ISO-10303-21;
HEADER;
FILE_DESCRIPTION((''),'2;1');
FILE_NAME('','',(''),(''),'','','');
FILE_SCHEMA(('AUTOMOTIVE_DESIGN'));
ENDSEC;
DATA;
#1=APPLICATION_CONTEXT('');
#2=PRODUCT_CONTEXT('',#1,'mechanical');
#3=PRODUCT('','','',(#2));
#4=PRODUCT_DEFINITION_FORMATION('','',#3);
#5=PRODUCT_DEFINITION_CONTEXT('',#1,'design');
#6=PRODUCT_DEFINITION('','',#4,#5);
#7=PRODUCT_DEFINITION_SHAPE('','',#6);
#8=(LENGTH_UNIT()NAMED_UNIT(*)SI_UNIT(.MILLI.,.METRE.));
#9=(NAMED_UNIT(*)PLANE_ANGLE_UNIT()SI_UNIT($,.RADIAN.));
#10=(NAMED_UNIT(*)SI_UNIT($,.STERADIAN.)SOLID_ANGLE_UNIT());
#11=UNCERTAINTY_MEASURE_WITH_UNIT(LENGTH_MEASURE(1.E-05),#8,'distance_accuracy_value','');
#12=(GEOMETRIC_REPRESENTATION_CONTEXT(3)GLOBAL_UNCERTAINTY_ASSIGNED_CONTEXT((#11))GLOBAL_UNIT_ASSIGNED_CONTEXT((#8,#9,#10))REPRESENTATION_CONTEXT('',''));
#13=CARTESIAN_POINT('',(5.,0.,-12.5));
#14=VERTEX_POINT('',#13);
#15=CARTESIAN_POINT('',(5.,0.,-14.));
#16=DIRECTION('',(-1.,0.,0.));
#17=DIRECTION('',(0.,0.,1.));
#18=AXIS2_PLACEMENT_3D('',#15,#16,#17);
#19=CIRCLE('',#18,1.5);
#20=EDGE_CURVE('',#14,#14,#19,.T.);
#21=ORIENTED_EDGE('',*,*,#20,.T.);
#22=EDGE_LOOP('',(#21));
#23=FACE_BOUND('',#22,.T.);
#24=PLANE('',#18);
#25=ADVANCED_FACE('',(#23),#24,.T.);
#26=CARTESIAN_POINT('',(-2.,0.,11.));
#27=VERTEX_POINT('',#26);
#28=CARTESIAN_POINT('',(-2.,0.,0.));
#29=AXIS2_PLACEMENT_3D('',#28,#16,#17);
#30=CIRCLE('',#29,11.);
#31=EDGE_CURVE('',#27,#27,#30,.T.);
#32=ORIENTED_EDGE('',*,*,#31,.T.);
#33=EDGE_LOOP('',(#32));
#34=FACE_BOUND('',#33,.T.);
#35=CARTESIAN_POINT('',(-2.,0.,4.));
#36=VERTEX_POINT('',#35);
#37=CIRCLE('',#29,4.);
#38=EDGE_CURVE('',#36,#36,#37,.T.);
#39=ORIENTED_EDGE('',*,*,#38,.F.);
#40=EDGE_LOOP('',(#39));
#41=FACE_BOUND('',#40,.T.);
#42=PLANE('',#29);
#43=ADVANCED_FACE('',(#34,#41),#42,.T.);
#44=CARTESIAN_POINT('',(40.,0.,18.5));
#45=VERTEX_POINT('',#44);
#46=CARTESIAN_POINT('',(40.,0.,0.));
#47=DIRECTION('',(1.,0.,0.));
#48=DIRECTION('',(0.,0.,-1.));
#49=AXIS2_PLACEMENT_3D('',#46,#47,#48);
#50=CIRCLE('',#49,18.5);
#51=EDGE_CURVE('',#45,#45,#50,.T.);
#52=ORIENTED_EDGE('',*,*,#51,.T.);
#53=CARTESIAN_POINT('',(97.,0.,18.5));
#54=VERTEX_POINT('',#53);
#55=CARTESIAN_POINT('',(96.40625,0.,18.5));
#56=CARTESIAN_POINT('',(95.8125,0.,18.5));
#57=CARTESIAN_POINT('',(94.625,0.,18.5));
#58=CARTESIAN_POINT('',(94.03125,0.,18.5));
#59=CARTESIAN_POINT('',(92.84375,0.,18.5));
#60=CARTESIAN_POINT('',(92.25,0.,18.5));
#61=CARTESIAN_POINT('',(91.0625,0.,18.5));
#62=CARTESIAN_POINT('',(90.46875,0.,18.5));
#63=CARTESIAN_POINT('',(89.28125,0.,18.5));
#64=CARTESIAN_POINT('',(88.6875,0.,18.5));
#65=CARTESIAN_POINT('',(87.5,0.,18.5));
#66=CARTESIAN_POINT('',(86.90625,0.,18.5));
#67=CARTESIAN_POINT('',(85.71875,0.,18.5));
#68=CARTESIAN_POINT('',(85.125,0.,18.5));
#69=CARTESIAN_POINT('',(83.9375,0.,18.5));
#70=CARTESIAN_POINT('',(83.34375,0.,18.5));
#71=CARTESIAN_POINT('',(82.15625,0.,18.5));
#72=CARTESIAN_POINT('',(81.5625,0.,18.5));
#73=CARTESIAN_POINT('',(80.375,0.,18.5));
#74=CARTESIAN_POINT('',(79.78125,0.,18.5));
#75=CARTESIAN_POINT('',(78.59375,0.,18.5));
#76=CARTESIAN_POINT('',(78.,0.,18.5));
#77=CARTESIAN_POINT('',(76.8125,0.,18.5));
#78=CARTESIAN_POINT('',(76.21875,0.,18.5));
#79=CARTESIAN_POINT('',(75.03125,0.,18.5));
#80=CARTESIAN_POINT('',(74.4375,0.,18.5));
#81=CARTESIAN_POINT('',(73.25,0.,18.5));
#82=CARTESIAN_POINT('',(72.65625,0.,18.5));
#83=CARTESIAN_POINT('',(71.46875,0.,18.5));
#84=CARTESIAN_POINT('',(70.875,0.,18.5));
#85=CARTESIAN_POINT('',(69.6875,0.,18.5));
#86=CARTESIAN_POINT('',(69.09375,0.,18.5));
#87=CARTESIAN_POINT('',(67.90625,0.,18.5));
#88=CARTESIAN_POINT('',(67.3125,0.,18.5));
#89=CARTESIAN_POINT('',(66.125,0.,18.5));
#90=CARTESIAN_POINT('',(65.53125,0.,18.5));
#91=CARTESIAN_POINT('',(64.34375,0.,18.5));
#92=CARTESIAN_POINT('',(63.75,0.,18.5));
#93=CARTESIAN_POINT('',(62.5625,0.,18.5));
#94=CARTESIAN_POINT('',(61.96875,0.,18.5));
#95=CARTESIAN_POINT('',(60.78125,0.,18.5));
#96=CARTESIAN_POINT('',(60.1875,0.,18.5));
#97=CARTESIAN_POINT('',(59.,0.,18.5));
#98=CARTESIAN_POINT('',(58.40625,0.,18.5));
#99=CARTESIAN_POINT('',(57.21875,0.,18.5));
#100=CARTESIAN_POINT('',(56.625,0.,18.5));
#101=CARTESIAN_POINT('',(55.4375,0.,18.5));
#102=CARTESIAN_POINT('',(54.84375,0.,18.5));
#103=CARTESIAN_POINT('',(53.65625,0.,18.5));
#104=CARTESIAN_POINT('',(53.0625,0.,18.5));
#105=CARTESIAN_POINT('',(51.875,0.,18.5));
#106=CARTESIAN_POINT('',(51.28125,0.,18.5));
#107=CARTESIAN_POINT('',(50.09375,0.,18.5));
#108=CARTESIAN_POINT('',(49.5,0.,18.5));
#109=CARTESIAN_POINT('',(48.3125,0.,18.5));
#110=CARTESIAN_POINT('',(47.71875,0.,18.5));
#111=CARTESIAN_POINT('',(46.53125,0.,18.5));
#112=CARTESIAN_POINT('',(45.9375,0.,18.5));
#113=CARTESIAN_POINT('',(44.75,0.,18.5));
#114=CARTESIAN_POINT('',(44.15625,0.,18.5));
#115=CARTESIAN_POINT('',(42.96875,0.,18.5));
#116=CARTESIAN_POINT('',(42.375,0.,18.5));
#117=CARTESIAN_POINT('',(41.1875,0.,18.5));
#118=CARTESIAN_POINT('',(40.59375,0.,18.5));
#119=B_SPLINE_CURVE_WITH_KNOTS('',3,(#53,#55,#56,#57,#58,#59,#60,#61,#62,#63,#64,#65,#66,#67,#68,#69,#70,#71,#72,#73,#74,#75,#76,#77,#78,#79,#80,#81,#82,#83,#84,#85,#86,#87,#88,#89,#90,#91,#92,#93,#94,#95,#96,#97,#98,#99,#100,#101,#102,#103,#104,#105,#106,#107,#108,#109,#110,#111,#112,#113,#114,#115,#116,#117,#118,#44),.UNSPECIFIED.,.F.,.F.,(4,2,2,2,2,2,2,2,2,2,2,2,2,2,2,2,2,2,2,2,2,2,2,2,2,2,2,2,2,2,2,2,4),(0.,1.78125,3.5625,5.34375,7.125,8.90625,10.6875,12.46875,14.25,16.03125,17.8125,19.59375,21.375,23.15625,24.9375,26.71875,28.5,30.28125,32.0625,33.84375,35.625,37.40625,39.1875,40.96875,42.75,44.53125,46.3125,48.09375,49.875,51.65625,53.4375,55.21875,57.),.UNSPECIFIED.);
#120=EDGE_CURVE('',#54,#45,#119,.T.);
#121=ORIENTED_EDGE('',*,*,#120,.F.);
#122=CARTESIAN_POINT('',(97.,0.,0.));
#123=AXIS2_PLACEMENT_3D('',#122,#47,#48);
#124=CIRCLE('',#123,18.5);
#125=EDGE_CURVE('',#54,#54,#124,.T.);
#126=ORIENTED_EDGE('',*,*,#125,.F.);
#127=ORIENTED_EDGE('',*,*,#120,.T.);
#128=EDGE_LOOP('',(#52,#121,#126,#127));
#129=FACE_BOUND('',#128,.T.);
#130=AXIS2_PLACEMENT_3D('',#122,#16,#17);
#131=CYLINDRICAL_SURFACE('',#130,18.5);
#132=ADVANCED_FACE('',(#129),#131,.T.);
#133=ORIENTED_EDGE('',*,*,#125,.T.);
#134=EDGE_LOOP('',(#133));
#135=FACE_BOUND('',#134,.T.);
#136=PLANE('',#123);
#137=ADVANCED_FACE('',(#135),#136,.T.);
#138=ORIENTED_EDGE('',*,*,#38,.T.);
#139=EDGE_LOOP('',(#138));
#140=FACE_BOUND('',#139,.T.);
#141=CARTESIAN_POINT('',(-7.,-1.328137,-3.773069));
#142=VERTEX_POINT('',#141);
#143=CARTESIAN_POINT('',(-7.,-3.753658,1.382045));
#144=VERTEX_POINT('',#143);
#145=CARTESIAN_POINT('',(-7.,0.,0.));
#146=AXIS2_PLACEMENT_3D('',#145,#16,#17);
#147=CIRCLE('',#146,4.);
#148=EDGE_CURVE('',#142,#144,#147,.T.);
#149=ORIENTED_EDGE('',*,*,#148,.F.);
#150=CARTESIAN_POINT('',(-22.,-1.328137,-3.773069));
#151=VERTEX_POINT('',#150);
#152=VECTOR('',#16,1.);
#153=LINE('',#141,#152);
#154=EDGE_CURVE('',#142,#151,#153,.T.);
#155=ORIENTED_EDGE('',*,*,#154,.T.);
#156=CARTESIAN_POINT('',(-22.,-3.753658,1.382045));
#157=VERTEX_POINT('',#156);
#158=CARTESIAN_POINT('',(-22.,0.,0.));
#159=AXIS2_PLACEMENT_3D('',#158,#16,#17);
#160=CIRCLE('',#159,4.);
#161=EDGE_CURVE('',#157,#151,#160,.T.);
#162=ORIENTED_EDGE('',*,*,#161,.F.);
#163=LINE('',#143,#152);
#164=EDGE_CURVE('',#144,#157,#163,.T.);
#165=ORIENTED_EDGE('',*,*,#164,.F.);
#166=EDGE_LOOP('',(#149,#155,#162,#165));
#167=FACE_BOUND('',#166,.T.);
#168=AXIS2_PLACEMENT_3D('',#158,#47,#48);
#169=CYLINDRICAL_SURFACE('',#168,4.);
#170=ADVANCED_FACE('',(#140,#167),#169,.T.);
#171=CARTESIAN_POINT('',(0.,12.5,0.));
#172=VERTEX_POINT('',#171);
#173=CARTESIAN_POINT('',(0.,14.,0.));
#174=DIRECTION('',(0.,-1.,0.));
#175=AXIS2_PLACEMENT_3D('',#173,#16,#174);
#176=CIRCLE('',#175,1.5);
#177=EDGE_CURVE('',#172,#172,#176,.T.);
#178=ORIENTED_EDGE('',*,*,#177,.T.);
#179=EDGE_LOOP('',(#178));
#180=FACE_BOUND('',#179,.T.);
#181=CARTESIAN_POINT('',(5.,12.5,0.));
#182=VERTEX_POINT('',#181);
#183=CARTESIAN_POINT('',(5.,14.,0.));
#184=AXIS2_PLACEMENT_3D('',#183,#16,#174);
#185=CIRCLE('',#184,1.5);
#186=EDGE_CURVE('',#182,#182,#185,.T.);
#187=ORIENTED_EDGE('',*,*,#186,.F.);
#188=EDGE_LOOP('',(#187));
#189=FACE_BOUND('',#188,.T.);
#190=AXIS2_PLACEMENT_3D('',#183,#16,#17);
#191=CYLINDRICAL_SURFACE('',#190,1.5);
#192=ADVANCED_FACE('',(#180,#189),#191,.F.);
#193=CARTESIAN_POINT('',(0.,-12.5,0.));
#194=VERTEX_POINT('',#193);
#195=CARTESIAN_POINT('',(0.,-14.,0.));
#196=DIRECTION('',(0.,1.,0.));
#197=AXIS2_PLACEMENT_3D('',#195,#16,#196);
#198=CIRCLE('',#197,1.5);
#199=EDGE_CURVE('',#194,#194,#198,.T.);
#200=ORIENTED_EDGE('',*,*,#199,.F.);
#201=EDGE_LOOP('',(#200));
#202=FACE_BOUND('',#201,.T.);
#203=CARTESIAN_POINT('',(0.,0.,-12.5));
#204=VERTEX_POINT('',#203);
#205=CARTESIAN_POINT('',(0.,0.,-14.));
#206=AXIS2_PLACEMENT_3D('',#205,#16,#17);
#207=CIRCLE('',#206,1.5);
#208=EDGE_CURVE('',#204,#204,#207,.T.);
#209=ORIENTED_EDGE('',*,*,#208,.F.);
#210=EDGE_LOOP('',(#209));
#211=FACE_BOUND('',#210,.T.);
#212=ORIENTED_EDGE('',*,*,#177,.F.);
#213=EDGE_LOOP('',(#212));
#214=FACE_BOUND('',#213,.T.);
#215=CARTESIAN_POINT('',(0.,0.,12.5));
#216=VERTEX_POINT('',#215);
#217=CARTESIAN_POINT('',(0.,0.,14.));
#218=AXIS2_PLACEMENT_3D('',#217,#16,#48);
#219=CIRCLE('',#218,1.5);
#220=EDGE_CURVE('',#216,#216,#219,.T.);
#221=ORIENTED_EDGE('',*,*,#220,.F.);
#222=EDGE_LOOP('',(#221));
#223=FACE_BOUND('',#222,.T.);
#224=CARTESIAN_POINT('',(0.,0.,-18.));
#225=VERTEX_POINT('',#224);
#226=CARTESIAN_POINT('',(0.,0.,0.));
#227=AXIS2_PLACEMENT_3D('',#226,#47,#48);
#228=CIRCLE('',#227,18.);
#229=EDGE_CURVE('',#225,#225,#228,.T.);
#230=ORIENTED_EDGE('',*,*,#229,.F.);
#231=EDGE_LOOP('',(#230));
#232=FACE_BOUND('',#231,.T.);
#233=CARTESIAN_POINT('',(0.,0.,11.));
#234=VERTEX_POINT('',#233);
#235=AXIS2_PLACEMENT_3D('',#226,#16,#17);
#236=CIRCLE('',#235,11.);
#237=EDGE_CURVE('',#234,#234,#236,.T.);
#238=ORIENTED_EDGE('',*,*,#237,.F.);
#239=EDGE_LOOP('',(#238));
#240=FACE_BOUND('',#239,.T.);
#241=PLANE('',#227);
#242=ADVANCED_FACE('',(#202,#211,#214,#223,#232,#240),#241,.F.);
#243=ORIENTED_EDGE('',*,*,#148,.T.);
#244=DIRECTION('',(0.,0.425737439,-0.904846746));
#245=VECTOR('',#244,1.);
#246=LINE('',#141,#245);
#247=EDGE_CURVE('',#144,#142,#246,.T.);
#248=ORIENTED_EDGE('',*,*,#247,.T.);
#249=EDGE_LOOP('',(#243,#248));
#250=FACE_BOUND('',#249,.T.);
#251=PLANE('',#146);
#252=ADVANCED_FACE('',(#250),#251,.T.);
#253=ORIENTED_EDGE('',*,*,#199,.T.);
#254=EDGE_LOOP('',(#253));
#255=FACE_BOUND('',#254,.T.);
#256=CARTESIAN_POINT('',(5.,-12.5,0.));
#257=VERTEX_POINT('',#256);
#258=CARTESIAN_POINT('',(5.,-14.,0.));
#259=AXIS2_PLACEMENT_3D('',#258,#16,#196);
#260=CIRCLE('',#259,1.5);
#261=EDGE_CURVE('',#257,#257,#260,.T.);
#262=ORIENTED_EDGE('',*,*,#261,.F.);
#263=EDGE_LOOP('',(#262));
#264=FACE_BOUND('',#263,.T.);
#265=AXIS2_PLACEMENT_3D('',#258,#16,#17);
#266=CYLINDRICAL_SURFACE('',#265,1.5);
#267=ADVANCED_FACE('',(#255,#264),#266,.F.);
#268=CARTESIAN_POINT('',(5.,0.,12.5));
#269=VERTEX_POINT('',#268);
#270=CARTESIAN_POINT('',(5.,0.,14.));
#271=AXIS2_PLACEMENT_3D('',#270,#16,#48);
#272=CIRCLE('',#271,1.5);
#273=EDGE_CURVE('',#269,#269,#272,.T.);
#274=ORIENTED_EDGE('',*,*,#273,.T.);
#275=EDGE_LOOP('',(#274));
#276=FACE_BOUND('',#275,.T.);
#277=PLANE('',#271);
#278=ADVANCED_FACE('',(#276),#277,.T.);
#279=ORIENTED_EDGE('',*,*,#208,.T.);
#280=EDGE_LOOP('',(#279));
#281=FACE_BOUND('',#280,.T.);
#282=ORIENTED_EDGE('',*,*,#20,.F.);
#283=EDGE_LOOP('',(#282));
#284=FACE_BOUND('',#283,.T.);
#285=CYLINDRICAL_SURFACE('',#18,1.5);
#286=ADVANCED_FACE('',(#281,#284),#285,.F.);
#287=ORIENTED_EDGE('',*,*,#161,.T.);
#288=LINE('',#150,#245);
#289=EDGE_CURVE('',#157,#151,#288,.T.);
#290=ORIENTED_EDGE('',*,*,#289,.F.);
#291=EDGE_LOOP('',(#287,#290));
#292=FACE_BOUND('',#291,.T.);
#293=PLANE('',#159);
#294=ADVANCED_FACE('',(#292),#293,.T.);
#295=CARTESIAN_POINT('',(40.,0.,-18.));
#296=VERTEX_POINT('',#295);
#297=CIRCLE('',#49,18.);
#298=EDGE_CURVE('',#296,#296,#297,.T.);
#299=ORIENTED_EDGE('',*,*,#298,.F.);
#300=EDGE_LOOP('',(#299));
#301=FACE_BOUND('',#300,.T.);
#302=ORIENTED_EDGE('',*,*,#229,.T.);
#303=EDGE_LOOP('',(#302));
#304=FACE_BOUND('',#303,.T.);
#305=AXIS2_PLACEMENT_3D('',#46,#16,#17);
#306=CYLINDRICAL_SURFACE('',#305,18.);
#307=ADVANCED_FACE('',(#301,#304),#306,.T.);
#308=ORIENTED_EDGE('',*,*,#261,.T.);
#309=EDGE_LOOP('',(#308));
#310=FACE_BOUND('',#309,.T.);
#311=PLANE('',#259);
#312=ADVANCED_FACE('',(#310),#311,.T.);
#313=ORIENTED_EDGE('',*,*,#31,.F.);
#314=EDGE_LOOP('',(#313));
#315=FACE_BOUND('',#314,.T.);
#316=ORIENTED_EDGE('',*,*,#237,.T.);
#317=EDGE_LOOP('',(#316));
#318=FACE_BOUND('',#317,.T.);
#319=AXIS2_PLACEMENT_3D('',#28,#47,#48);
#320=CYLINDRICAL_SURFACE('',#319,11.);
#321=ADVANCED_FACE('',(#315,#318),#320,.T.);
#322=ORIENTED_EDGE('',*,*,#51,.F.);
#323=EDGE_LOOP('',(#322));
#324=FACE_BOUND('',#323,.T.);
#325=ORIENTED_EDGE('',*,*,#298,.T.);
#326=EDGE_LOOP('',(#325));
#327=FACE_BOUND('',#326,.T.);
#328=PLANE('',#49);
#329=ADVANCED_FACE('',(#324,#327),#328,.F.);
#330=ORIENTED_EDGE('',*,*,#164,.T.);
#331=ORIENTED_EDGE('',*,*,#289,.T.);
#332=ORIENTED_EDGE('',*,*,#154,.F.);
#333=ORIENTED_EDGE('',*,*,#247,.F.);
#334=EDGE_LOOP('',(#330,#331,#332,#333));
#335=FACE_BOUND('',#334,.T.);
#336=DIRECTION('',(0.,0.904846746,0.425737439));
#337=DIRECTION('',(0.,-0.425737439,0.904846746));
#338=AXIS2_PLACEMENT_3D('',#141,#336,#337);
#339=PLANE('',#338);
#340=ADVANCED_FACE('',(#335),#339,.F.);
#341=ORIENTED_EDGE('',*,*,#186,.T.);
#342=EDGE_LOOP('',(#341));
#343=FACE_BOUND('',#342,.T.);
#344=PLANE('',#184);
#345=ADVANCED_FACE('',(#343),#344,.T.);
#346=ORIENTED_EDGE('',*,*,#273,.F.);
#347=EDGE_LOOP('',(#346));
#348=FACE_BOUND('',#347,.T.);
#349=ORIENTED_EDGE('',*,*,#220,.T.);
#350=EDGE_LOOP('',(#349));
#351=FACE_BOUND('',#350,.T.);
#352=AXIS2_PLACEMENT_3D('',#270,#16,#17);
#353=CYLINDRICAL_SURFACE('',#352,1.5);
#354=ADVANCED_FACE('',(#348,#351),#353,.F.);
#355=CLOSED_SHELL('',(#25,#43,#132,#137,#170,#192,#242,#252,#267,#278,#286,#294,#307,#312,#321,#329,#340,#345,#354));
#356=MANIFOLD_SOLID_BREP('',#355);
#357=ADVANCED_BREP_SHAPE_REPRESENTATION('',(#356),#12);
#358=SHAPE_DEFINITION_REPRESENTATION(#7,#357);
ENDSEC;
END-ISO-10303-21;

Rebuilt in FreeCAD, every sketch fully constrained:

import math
import FreeCAD as App
import Part
import Sketcher

V = App.Vector

doc = App.newDocument("Part")
body = doc.addObject("PartDesign::Body", "Body")

# Sketch on YZ plane
sketch1 = doc.addObject("Sketcher::SketchObject", "Sketch")
body.addObject(sketch1)
sketch1.AttachmentSupport = (doc.YZ_Plane, [""])
sketch1.MapMode = "FlatFace"
sketch1.addGeometry(Part.Circle(V(0, 0, 0), V(0, 0, 1), 18), False)
sketch1.addConstraint([
    Sketcher.Constraint("Coincident", 0, 3, -1, 1),
    Sketcher.Constraint("Diameter", 0, 36.0),
])
pad1 = doc.addObject("PartDesign::Pad", "Pad")
body.addObject(pad1)
pad1.Profile = sketch1
pad1.Length = 40

# Sketch on YZ plane
sketch2 = doc.addObject("Sketcher::SketchObject", "Sketch001")
body.addObject(sketch2)
sketch2.AttachmentSupport = (doc.YZ_Plane, [""])
sketch2.MapMode = "FlatFace"
sketch2.addGeometry(Part.Circle(V(0, 0, 0), V(0, 0, 1), 11), False)
sketch2.addConstraint([
    Sketcher.Constraint("Coincident", 0, 3, -1, 1),
    Sketcher.Constraint("Diameter", 0, 22.0),
])
pad2 = doc.addObject("PartDesign::Pad", "Pad001")
body.addObject(pad2)
pad2.Profile = sketch2
pad2.Length = 2
pad2.Reversed = True

# Sketch on YZ plane
sketch3 = doc.addObject("Sketcher::SketchObject", "Sketch002")
body.addObject(sketch3)
sketch3.AttachmentSupport = (doc.YZ_Plane, [""])
sketch3.MapMode = "FlatFace"
sketch3.AttachmentOffset = App.Placement(V(0, 0, -2), App.Rotation())
sketch3.addGeometry(Part.Circle(V(0, 0, 0), V(0, 0, 1), 4), False)
sketch3.addConstraint([
    Sketcher.Constraint("Coincident", 0, 3, -1, 1),
    Sketcher.Constraint("Diameter", 0, 8.0),
])
pad3 = doc.addObject("PartDesign::Pad", "Pad002")
body.addObject(pad3)
pad3.Profile = sketch3
pad3.Length = 20
pad3.Reversed = True

# Sketch on YZ plane
sketch4 = doc.addObject("Sketcher::SketchObject", "Sketch003")
body.addObject(sketch4)
sketch4.AttachmentSupport = (doc.YZ_Plane, [""])
sketch4.MapMode = "FlatFace"
sketch4.addGeometry(Part.Circle(V(0, -14, 0), V(0, 0, 1), 1.5), False)
sketch4.addConstraint([
    Sketcher.Constraint("PointOnObject", 0, 3, -2),
    Sketcher.Constraint("Diameter", 0, 3.0),
    Sketcher.Constraint("DistanceY", 0, 3, -1, 1, 14.0),
])
pocket1 = doc.addObject("PartDesign::Pocket", "Pocket")
body.addObject(pocket1)
pocket1.Profile = sketch4
pocket1.Length = 5
pocket1.Reversed = True
doc.recompute()

polarpattern = doc.addObject("PartDesign::PolarPattern", "PolarPattern")
body.addObject(polarpattern)
polarpattern.Originals = [pocket1]
polarpattern.Axis = (doc.X_Axis, [""])
polarpattern.Angle = 360
polarpattern.Occurrences = 4
body.Tip = polarpattern

# Sketch on YZ plane
sketch5 = doc.addObject("Sketcher::SketchObject", "Sketch004")
body.addObject(sketch5)
sketch5.AttachmentSupport = (doc.YZ_Plane, [""])
sketch5.MapMode = "FlatFace"
sketch5.AttachmentOffset = App.Placement(V(0, 0, -7), App.Rotation())
sketch5.addGeometry([
    Part.LineSegment(V(-3.8, 1.4, 0), V(-1.3, -3.8, 0)),
    Part.ArcOfCircle(Part.Circle(V(0, 0, 0), V(0, 0, 1), 4), math.radians(160), math.radians(251)),
], False)
sketch5.addConstraint([
    Sketcher.Constraint("Coincident", 0, 1, 1, 1),
    Sketcher.Constraint("Coincident", 1, 2, 0, 2),
    Sketcher.Constraint("Coincident", 1, 3, -1, 1),
    Sketcher.Constraint("Radius", 1, 4.0),
    Sketcher.Constraint("DistanceX", 0, 1, -1, 1, 3.753658),
    Sketcher.Constraint("DistanceY", 1, 2, -1, 1, 3.773069),
])
pocket2 = doc.addObject("PartDesign::Pocket", "Pocket001")
body.addObject(pocket2)
pocket2.Profile = sketch5
pocket2.Length = 15

# Sketch on YZ plane
sketch6 = doc.addObject("Sketcher::SketchObject", "Sketch005")
body.addObject(sketch6)
sketch6.AttachmentSupport = (doc.YZ_Plane, [""])
sketch6.MapMode = "FlatFace"
sketch6.AttachmentOffset = App.Placement(V(0, 0, 40), App.Rotation())
sketch6.addGeometry(Part.Circle(V(0, 0, 0), V(0, 0, 1), 18), False)
sketch6.addConstraint([
    Sketcher.Constraint("Coincident", 0, 3, -1, 1),
    Sketcher.Constraint("Diameter", 0, 37.0),
])
pad4 = doc.addObject("PartDesign::Pad", "Pad003")
body.addObject(pad4)
pad4.Profile = sketch6
pad4.Length = 57

doc.recompute()
